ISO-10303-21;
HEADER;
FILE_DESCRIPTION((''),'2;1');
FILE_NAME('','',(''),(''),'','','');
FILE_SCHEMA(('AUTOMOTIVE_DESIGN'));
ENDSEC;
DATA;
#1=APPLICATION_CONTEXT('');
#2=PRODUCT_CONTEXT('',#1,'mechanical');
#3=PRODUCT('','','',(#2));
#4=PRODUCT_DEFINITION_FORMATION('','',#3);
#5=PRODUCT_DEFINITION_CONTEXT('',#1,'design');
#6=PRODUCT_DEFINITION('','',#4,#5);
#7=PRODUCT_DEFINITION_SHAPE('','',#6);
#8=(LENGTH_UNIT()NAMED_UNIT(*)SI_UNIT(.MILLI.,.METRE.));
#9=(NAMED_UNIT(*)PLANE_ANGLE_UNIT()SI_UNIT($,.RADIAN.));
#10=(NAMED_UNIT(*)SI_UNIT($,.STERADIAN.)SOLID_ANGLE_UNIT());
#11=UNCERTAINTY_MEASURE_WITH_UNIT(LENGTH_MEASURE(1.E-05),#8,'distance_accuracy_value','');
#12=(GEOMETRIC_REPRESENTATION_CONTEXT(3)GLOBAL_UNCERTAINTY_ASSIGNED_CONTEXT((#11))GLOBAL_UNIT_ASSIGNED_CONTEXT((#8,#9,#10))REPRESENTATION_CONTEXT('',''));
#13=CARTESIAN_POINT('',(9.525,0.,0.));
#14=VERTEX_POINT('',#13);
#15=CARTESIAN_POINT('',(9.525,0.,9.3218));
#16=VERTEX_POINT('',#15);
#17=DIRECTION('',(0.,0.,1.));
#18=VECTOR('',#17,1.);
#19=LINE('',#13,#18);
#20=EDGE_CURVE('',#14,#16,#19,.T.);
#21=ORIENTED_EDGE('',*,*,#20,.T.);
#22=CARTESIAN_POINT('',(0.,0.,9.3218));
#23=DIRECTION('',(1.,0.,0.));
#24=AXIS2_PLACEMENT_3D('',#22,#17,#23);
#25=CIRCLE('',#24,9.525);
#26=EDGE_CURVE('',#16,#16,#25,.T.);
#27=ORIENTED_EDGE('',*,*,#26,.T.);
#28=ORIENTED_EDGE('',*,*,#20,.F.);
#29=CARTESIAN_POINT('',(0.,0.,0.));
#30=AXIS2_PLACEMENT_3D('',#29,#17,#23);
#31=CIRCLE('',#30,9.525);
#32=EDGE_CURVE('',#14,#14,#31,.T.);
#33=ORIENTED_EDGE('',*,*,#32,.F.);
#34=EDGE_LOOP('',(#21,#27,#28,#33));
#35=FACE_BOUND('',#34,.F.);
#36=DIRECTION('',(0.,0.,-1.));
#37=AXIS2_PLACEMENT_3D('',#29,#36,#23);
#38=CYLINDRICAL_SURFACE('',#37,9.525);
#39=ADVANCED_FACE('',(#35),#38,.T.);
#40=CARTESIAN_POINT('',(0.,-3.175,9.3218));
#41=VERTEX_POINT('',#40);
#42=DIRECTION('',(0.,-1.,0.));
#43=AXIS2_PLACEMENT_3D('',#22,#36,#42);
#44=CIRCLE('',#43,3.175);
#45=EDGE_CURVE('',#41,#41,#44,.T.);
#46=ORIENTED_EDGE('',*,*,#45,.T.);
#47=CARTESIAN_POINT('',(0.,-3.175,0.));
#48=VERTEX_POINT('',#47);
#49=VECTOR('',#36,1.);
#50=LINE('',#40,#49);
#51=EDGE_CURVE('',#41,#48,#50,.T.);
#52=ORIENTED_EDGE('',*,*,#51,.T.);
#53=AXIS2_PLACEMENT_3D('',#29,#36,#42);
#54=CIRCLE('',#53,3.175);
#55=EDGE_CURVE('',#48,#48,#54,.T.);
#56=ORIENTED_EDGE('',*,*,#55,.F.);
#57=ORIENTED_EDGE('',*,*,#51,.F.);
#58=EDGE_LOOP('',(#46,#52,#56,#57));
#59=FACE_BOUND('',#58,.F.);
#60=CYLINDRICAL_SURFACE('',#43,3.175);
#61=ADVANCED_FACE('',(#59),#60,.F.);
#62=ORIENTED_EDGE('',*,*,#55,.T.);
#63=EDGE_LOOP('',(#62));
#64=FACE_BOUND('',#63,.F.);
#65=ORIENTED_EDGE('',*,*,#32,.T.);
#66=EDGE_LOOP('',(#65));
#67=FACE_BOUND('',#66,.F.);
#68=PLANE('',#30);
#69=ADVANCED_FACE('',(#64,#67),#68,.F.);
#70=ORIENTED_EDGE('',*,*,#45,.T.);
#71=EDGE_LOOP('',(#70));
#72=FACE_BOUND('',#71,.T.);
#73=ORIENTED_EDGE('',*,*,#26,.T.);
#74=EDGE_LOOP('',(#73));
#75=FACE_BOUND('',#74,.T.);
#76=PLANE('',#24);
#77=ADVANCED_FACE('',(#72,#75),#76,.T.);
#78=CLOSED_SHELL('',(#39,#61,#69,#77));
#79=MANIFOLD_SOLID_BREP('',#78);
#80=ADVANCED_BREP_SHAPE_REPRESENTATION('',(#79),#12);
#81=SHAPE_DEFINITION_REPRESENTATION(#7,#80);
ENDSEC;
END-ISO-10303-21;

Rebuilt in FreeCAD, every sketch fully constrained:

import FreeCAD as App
import Part
import Sketcher
from FreeCAD import Vector
Q = App.Units.Quantity

doc = App.newDocument("Part")
params = doc.addObject("Spreadsheet::Sheet", "Params")
for row, (alias, value) in enumerate([
    ("sketch1_diameter", "0.75 in"),
    ("pad1_length", "0.367 in"),
    ("sketch2_diameter", "0.25 in"),
    ("hole_diameter", "0.25 in"),
], start=1):
    params.set(f"A{row}", alias)
    params.set(f"B{row}", "=" + value)
    params.setAlias(f"B{row}", alias)

body = doc.addObject("PartDesign::Body", "Body")

sketch1 = doc.addObject("Sketcher::SketchObject", "Sketch")
body.addObject(sketch1)
sketch1.AttachmentSupport = (doc.XY_Plane, [""])
sketch1.MapMode = "FlatFace"
sketch1.addGeometry(Part.Circle(Vector(0, 0, 0), Vector(0, 0, 1), 10), False)
sketch1.addConstraint(Sketcher.Constraint("Coincident", 0, 3, -1, 1))
sketch1.addConstraint(Sketcher.Constraint("Diameter", 0, Q("0.75 in")))
sketch1.setExpression("Constraints[1]", "Params.sketch1_diameter")
pad1 = doc.addObject("PartDesign::Pad", "Pad")
body.addObject(pad1)
pad1.Profile = sketch1
pad1.setExpression("Length", "Params.pad1_length")

sketch2 = doc.addObject("Sketcher::SketchObject", "Sketch001")
body.addObject(sketch2)
sketch2.AttachmentSupport = (doc.XY_Plane, [""])
sketch2.MapMode = "FlatFace"
sketch2.AttachmentOffset = App.Placement(Vector(0, 0, 0.367 * 25.4), App.Rotation())
sketch2.addGeometry(Part.Circle(Vector(0, 0, 0), Vector(0, 0, 1), 3.2), False)
sketch2.addConstraint(Sketcher.Constraint("Coincident", 0, 3, -1, 1))
sketch2.addConstraint(Sketcher.Constraint("Diameter", 0, Q("0.25 in")))
sketch2.setExpression("Constraints[1]", "Params.sketch2_diameter")
doc.recompute()
hole = doc.addObject("PartDesign::Hole", "Hole")
body.addObject(hole)
hole.Profile = sketch2
hole.ThreadType = "None"
hole.setExpression("Diameter", "Params.hole_diameter")
hole.DepthType = "ThroughAll"

doc.recompute()
